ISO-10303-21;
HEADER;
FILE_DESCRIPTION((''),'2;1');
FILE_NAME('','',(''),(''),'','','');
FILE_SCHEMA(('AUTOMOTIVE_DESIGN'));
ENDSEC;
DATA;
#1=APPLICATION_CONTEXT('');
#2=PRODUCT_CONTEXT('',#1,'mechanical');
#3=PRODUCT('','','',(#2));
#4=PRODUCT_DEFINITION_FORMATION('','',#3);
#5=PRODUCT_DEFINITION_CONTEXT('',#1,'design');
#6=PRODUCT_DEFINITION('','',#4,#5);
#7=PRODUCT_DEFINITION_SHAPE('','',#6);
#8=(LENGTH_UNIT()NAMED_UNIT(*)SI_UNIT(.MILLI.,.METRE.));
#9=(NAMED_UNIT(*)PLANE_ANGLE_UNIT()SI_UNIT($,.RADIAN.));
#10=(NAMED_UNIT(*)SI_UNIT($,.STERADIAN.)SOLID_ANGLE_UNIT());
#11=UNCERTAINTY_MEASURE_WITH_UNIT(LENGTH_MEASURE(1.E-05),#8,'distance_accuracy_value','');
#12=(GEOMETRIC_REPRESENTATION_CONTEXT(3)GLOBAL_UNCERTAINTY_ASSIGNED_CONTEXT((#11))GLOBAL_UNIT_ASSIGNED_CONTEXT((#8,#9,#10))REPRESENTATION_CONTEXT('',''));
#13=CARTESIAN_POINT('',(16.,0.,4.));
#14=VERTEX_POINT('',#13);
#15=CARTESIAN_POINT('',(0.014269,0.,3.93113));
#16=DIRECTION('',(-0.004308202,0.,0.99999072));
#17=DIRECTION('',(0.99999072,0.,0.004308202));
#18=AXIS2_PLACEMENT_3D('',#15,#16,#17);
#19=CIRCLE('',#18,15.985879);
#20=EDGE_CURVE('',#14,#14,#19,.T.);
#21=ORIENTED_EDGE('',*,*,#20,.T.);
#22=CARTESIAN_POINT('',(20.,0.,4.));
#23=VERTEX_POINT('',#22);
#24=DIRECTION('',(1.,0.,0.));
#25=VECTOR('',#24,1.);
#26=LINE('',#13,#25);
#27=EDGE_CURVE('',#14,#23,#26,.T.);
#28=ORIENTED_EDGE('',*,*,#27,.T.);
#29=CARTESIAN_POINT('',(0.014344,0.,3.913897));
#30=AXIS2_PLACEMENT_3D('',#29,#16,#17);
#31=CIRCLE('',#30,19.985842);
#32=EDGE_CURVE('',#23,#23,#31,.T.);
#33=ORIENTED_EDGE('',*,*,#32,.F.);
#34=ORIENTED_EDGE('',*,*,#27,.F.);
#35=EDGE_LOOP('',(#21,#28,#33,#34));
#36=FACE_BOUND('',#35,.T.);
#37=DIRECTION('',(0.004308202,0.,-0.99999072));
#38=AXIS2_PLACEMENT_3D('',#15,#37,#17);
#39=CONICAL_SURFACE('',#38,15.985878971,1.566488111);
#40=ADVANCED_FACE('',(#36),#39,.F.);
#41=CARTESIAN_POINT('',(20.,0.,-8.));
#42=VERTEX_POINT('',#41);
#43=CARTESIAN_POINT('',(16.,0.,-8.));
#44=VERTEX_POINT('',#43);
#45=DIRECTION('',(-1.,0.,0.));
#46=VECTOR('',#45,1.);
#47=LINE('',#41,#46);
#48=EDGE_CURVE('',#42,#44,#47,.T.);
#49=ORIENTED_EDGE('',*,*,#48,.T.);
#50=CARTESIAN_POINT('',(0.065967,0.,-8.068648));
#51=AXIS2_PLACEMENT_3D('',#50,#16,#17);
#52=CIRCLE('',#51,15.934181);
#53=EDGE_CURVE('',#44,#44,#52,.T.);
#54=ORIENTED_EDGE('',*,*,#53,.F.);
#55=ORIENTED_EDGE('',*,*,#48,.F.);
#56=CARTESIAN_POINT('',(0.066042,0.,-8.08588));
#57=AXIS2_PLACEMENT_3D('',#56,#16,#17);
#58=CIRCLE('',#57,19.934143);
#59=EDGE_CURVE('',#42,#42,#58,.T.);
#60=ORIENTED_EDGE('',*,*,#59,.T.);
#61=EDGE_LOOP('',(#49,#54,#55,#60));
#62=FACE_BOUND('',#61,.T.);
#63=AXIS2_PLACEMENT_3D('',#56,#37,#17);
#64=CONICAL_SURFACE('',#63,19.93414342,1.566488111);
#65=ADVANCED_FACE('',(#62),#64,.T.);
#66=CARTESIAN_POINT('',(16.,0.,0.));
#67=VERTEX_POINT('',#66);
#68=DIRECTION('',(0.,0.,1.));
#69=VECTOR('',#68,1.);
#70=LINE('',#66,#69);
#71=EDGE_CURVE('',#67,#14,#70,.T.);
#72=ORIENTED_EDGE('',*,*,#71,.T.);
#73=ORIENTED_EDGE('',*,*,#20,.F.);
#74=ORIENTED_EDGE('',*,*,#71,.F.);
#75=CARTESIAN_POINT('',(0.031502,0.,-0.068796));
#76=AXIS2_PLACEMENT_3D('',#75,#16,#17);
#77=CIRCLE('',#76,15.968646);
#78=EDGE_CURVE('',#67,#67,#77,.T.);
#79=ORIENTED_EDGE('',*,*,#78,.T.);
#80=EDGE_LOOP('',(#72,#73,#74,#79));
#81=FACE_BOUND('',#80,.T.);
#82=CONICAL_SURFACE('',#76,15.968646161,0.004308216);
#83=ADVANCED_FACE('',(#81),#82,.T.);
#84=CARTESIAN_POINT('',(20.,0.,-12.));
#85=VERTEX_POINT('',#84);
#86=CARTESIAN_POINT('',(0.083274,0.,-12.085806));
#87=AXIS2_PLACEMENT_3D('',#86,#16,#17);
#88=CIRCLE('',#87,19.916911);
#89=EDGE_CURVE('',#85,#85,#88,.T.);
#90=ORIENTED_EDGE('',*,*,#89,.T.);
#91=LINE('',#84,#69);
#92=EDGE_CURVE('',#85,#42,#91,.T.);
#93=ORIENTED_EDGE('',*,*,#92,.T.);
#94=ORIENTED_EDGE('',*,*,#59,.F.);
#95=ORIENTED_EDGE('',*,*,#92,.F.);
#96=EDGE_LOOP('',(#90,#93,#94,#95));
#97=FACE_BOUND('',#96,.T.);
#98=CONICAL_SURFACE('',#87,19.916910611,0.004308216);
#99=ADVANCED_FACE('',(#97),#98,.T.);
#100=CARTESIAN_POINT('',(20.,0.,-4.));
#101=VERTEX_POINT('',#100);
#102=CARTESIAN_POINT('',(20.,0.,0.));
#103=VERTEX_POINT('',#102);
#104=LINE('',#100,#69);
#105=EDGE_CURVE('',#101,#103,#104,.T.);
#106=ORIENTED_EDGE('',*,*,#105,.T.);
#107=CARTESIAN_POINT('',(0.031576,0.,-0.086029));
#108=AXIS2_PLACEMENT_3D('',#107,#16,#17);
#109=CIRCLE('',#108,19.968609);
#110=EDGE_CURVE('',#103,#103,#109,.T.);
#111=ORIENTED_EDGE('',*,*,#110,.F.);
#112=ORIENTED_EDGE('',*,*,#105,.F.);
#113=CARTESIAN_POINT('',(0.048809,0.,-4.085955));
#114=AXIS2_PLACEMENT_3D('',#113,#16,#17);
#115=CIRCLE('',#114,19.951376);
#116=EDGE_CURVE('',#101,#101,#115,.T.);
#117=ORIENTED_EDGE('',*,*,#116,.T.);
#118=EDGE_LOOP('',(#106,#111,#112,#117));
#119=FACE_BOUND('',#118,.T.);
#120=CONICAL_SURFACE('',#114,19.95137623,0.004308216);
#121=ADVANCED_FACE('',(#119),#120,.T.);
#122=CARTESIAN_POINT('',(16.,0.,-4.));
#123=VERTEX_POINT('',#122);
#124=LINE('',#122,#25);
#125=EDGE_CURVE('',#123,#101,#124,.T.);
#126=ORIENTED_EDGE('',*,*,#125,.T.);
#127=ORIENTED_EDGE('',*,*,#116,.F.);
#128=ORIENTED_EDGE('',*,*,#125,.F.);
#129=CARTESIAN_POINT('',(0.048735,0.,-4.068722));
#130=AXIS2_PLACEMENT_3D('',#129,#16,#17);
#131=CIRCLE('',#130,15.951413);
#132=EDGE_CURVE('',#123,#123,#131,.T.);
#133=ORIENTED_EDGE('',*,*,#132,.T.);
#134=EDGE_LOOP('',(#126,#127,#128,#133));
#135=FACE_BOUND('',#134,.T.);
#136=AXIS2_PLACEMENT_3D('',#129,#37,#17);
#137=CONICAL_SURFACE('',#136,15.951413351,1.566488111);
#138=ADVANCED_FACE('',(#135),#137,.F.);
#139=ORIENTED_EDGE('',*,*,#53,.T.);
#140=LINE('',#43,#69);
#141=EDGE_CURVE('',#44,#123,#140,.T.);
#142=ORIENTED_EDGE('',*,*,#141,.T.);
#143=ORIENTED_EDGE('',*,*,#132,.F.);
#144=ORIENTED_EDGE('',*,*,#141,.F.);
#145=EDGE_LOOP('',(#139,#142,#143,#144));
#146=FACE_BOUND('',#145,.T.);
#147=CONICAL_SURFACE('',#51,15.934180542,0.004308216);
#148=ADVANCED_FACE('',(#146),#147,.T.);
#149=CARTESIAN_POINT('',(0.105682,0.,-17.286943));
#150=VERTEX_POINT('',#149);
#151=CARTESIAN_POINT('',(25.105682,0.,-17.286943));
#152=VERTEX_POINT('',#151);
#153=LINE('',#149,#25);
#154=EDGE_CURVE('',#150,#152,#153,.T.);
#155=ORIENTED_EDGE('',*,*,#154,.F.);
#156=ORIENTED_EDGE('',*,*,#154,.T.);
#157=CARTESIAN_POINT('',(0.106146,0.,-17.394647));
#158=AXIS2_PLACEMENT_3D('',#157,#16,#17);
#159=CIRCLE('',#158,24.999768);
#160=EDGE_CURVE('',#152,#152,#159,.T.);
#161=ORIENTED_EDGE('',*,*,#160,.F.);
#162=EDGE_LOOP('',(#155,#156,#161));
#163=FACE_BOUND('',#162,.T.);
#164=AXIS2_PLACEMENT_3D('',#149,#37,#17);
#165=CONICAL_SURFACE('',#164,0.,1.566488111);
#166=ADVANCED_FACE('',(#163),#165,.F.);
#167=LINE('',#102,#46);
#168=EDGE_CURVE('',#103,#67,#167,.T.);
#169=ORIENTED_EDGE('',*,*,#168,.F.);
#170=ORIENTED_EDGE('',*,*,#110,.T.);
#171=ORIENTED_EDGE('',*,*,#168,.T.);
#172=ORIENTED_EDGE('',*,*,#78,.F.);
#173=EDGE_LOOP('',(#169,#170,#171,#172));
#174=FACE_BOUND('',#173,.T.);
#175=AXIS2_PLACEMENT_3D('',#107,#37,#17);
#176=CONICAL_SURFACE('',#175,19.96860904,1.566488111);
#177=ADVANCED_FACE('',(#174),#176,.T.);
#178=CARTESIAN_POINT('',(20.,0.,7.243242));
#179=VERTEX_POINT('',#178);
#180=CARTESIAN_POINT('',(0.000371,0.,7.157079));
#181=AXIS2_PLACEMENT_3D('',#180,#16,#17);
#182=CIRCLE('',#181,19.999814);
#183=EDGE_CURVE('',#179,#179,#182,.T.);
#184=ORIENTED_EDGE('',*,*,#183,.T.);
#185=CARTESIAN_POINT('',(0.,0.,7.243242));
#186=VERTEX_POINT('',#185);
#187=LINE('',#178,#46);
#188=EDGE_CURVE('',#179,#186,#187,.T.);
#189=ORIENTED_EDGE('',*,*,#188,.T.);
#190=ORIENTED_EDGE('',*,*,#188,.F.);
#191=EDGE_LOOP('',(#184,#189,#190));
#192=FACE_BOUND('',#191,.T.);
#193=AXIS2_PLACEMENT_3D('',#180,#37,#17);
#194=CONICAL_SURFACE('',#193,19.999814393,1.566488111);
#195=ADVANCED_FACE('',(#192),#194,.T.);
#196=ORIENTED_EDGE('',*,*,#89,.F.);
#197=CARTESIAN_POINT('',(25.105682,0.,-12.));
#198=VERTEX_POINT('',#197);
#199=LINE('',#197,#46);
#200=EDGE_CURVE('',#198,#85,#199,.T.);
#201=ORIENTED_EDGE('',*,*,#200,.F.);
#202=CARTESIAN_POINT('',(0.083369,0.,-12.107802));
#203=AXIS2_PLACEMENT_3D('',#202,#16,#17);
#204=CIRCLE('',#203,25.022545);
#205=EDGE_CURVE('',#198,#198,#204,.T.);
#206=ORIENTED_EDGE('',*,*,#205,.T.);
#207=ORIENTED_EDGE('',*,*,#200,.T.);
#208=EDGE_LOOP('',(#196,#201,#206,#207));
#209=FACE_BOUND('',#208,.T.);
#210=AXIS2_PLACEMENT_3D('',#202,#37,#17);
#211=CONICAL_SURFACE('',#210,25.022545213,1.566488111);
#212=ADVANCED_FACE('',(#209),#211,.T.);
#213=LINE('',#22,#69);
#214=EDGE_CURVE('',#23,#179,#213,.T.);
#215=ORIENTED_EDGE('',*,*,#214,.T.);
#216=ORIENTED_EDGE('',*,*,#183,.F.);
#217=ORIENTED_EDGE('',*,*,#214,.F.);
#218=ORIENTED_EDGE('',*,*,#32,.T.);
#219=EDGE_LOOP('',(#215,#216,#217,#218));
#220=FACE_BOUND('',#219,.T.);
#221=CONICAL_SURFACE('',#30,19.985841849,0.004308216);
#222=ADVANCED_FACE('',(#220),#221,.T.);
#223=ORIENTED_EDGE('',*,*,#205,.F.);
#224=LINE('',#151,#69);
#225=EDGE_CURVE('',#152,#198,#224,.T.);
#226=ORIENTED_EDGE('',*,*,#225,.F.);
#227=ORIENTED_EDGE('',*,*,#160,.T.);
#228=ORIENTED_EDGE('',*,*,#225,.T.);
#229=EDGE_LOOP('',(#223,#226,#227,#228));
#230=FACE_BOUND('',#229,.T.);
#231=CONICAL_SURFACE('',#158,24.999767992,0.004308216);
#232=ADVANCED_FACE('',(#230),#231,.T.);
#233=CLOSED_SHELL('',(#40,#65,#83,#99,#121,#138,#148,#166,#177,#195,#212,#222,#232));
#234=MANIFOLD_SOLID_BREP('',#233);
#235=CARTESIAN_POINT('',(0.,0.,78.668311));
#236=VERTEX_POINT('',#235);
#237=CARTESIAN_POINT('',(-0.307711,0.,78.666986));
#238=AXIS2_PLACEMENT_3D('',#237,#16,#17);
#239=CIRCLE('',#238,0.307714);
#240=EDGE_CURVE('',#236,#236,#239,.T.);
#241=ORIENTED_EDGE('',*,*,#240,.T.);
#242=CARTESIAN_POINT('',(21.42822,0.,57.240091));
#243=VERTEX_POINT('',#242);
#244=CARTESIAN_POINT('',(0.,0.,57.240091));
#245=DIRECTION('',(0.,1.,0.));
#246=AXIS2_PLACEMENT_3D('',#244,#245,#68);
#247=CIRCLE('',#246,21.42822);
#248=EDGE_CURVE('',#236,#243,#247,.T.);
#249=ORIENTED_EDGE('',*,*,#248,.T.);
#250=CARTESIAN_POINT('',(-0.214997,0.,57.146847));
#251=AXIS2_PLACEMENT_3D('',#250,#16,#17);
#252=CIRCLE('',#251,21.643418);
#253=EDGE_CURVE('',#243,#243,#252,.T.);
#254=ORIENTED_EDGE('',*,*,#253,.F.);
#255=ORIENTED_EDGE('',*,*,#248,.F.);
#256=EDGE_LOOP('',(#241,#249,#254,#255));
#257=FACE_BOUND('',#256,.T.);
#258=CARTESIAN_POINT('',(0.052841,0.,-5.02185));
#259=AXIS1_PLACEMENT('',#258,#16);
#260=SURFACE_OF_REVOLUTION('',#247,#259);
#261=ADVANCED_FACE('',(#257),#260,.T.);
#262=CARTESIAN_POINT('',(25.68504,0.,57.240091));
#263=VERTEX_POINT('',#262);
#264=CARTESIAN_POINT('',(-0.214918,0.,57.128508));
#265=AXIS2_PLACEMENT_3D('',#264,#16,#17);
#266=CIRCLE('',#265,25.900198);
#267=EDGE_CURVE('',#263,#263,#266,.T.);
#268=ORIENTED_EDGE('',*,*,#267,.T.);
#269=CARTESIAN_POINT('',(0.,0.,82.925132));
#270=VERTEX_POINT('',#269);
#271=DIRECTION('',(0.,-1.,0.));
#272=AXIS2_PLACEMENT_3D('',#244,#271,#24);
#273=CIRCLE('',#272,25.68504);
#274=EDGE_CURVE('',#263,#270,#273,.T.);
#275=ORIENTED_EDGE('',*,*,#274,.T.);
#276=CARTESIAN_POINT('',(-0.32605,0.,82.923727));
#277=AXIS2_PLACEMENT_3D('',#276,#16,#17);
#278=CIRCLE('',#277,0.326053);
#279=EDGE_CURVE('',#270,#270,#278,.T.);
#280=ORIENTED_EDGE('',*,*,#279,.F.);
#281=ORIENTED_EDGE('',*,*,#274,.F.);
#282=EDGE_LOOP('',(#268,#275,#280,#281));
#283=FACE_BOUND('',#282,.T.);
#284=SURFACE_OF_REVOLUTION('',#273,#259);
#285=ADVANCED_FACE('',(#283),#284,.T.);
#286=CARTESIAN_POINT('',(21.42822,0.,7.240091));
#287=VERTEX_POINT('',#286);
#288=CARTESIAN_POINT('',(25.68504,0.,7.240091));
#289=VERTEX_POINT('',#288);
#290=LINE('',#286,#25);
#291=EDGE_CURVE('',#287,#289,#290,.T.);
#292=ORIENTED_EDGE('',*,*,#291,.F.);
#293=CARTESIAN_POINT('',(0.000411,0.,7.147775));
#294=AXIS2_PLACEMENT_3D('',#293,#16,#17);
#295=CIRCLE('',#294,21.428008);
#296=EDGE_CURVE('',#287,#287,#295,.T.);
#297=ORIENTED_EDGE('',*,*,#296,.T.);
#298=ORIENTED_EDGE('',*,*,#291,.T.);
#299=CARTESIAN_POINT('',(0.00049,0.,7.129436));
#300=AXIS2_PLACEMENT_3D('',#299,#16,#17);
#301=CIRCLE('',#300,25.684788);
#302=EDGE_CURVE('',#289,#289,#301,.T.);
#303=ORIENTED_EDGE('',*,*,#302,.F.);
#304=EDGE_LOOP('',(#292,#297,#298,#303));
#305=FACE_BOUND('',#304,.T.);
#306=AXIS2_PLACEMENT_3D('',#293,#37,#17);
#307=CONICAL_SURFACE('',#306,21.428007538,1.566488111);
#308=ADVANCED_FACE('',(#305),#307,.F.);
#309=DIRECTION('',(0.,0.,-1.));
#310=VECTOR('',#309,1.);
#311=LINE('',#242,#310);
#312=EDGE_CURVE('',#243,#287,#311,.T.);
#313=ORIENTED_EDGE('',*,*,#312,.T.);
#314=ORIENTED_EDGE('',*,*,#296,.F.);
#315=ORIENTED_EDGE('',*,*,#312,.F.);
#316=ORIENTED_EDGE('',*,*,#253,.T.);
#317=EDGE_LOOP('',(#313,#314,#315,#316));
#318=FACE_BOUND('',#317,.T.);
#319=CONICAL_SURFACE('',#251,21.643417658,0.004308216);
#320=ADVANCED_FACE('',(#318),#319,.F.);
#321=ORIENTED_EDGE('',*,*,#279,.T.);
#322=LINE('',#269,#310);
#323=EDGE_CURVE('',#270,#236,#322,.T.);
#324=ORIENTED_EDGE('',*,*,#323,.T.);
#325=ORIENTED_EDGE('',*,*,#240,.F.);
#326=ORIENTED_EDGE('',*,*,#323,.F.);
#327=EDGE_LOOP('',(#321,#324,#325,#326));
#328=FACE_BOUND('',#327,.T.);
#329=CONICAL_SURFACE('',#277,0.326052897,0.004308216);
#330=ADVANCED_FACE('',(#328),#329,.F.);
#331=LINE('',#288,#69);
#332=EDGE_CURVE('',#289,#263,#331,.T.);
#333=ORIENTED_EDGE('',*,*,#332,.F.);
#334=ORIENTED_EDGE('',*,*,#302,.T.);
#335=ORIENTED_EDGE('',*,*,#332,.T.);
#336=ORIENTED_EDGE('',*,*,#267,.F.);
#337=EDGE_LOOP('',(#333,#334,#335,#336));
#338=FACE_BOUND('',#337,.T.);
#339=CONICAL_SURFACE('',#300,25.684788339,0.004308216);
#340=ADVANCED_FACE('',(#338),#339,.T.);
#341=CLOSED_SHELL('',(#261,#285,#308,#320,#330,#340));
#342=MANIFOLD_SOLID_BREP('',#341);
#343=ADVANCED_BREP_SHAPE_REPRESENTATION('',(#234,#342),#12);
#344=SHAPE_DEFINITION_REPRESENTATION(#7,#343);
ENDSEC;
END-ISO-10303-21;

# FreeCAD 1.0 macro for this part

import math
import FreeCAD as App
import Part
import Sketcher
from FreeCAD import Vector


def add_polygon(sketch, points):
    """Adds a closed chain of lines whose ends are joined by coincident constraints."""
    first, n = sketch.GeometryCount, len(points)
    for a, b in zip(points, points[1:] + points[:1]):
        sketch.addGeometry(Part.LineSegment(App.Vector(*a, 0), App.Vector(*b, 0)), False)
    for i in range(n):
        sketch.addConstraint(Sketcher.Constraint("Coincident", first + i, 2, first + (i + 1) % n, 1))

doc = App.newDocument("Part")
body = doc.addObject("PartDesign::Body", "Body")

# Sketch on XZ plane
sketch1 = body.newObject("Sketcher::SketchObject", "Sketch")
sketch1.AttachmentSupport = (doc.getObject("XZ_Plane"), [""])
sketch1.MapMode = "FlatFace"
add_polygon(sketch1, [(20, 7.2), (0, 7.2), (0.1, -17.3), (25.1, -17.3), (25.1, -12), (20, -12), (20, -8), (16, -8), (16, -4), (20, -4), (20, 0), (16, 0), (16, 4), (20, 4)])  # lines 0-13
sketch1.addGeometry(Part.LineSegment(Vector(0.1, -17.4, 0), Vector(0, 7.2, 0)), True)  # axis
sketch1.addConstraint([
    Sketcher.Constraint("Horizontal", 0),
    Sketcher.Constraint("Horizontal", 2),
    Sketcher.Constraint("Vertical", 3),
    Sketcher.Constraint("Horizontal", 4),
    Sketcher.Constraint("Vertical", 5),
    Sketcher.Constraint("Horizontal", 6),
    Sketcher.Constraint("Vertical", 7),
    Sketcher.Constraint("Horizontal", 8),
    Sketcher.Constraint("Vertical", 9),
    Sketcher.Constraint("Horizontal", 10),
    Sketcher.Constraint("Vertical", 11),
    Sketcher.Constraint("Horizontal", 12),
    Sketcher.Constraint("Vertical", 13),
    Sketcher.Constraint("Coincident", 14, 2, 0, 2),
    Sketcher.Constraint("Symmetric", 7, 2, 11, 2, -1),
    Sketcher.Constraint("PointOnObject", 0, 2, -2),
    Sketcher.Constraint("PointOnObject", 9, 2, -1),
    Sketcher.Constraint("Parallel", 1, 14),
    Sketcher.Constraint("Vertical", 5, 2, 8, 2),
    Sketcher.Constraint("Vertical", 9, 2, 12, 2),
    Sketcher.Constraint("Equal", 12, 5),
    Sketcher.Constraint("Equal", 5, 7),
    Sketcher.Constraint("Equal", 7, 9),
    Sketcher.Constraint("DistanceX", 0, 2, 0, 1, 20.0),
    Sketcher.Constraint("DistanceX", 2, 1, 2, 2, 25.0),
    Sketcher.Constraint("DistanceX", 6, 2, 6, 1, 4.0),
    Sketcher.Constraint("DistanceX", 4, 2, 4, 1, 5.105682),
    Sketcher.Constraint("DistanceY", 3, 1, 3, 2, 5.286943),
    Sketcher.Constraint("DistanceY", 13, 1, 13, 2, 3.243242),
    Sketcher.Constraint("Distance", 14, 24.638118),
])
revolution = body.newObject("PartDesign::Revolution", "Revolution")
revolution.Profile = sketch1
revolution.ReferenceAxis = (sketch1, ["Axis0"])
revolution.Angle = 360
body2 = doc.addObject("PartDesign::Body", "Body001")

# Sketch on XZ plane
sketch2 = body2.newObject("Sketcher::SketchObject", "Sketch001")
sketch2.AttachmentSupport = (doc.getObject("XZ_Plane001"), [""])
sketch2.MapMode = "FlatFace"
sketch2.addGeometry([
    Part.LineSegment(Vector(21.4, 57.2, 0), Vector(21.4, 7.2, 0)),  # 0
    Part.LineSegment(Vector(21.4, 7.2, 0), Vector(25.7, 7.2, 0)),  # 1
    Part.LineSegment(Vector(25.7, 7.2, 0), Vector(25.7, 57.2, 0)),  # 2
    Part.ArcOfCircle(Part.Circle(Vector(0, 57.2, 0), Vector(0, 0, 1), 25.7), math.radians(0), math.radians(90)),  # 3
    Part.LineSegment(Vector(0, 82.9, 0), Vector(0, 78.7, 0)),  # 4
    Part.ArcOfCircle(Part.Circle(Vector(0, 57.2, 0), Vector(0, 0, 1), 21.4), math.radians(0), math.radians(90)),  # 5
], False)
sketch2.addGeometry(Part.LineSegment(Vector(0, 7.1, 0), Vector(-0.3, 82.9, 0)), True)  # axis
sketch2.addConstraint([
    Sketcher.Constraint("Coincident", 0, 2, 1, 1),
    Sketcher.Constraint("Coincident", 1, 2, 2, 1),
    Sketcher.Constraint("Tangent", 2, 2, 3, 1),
    Sketcher.Constraint("Coincident", 3, 2, 4, 1),
    Sketcher.Constraint("Coincident", 4, 2, 5, 2),
    Sketcher.Constraint("Tangent", 5, 1, 0, 1),
    Sketcher.Constraint("Vertical", 0),
    Sketcher.Constraint("Horizontal", 1),
    Sketcher.Constraint("Vertical", 2),
    Sketcher.Constraint("Vertical", 4),
    Sketcher.Constraint("Coincident", 5, 3, 3, 3),
    Sketcher.Constraint("PointOnObject", 3, 3, -2),
    Sketcher.Constraint("PointOnObject", 3, 2, -2),
    Sketcher.Constraint("DistanceY", 0, 2, 0, 1, 50.0),
    Sketcher.Constraint("Radius", 3, 25.68504),
    Sketcher.Constraint("Radius", 5, 21.42822),
    Sketcher.Constraint("DistanceY", -1, 1, 3, 3, 57.240091),
    Sketcher.Constraint("DistanceX", -1, 1, 6, 1, 0.00049),
    Sketcher.Constraint("DistanceX", 6, 2, -1, 1, 0.32605),
    Sketcher.Constraint("Distance", 6, 75.794994),
    Sketcher.Constraint("DistanceY", -1, 1, 6, 1, 7.129436),
])
revolution2 = body2.newObject("PartDesign::Revolution", "Revolution001")
revolution2.Profile = sketch2
revolution2.ReferenceAxis = (sketch2, ["Axis0"])
revolution2.Angle = 360

doc.recompute()
